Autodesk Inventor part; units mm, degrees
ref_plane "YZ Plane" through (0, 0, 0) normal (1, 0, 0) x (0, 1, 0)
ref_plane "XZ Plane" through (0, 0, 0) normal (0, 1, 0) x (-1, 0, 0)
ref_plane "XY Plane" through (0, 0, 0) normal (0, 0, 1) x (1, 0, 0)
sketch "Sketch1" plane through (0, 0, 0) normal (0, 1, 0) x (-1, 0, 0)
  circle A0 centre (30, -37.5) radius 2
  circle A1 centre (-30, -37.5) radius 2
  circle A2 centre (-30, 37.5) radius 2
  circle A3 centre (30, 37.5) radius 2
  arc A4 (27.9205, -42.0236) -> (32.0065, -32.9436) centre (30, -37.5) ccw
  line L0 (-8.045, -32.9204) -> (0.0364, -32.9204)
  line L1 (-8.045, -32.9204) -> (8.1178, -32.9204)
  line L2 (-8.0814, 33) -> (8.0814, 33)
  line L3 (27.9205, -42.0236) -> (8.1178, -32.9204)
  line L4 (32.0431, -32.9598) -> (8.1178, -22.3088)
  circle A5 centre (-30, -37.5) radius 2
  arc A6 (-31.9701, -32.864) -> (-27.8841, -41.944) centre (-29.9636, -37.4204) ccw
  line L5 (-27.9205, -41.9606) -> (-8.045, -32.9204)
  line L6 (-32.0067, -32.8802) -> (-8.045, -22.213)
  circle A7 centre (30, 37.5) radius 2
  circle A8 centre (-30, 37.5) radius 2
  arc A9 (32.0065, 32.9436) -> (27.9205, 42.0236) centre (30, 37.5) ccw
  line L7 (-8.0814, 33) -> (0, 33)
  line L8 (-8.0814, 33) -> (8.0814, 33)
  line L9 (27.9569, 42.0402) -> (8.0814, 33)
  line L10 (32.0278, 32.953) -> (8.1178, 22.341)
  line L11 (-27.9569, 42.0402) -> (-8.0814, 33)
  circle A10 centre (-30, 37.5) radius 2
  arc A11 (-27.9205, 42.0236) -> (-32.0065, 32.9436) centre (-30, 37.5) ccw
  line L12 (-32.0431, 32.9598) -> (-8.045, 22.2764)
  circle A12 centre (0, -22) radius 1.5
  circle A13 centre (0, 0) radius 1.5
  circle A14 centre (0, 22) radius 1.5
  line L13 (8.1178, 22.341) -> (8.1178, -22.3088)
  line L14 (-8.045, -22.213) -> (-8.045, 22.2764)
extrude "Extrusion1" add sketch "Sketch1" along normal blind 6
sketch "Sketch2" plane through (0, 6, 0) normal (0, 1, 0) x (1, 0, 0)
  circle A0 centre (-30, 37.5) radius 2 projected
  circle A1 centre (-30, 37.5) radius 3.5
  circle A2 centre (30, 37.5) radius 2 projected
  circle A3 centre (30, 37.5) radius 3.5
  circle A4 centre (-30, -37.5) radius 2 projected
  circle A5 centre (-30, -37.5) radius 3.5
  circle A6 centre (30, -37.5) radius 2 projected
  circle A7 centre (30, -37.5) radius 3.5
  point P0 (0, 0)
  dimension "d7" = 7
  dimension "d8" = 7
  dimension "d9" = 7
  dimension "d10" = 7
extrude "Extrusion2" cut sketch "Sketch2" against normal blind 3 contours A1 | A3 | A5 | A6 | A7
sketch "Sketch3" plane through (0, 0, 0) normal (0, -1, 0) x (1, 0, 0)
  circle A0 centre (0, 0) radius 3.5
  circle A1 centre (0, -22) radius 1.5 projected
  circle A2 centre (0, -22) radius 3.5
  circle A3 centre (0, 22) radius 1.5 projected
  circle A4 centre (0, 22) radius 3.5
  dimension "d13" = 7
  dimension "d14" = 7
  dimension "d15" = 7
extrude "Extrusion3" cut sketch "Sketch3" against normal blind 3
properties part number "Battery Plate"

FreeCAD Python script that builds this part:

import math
import FreeCAD as App
import Part
import Sketcher

V = App.Vector
Q = App.Units.Quantity

doc = App.newDocument("Part")
body = doc.addObject("PartDesign::Body", "Body")

# Sketch on XZ plane
sketch1 = body.newObject("Sketcher::SketchObject", "Sketch")
sketch1.AttachmentSupport = (doc.getObject("XZ_Plane"), [""])
sketch1.MapMode = "FlatFace"
sketch1.addGeometry([
    Part.LineSegment(V(-8.1178, -32.9204, 0), V(-27.9205, -42.0236, 0)),  # 0
    Part.ArcOfCircle(Part.Circle(V(-30, -37.5, 0), V(0, 0, 1), 4.978682), math.radians(113.767233), math.radians(294.688253)),  # 1
    Part.LineSegment(V(-32.006535, -32.943522, 0), V(-8.1178, -22.3088, 0)),  # 2
    Part.LineSegment(V(-8.1178, -22.3088, 0), V(-8.1178, 22.341, 0)),  # 3
    Part.LineSegment(V(-8.1178, 22.341, 0), V(-32.00652, 32.943555, 0)),  # 4
    Part.ArcOfCircle(Part.Circle(V(-30, 37.5, 0), V(0, 0, 1), 4.978637), math.radians(65.311747), math.radians(246.232767)),  # 5
    Part.LineSegment(V(-27.920484, 42.023636, 0), V(-8.0814, 33, 0)),  # 6
    Part.LineSegment(V(-8.0814, 33, 0), V(8.0814, 33, 0)),  # 7
    Part.LineSegment(V(8.0814, 33, 0), V(27.9569, 42.0402, 0)),  # 8
    Part.ArcOfCircle(Part.Circle(V(30, 37.5, 0), V(0, 0, 1), 4.978682), math.radians(-66.232767), math.radians(114.22785)),  # 9
    Part.LineSegment(V(32.006535, 32.943522, 0), V(8.045, 22.2764, 0)),  # 10
    Part.LineSegment(V(8.045, 22.2764, 0), V(8.045, -22.213, 0)),  # 11
    Part.LineSegment(V(8.045, -22.213, 0), V(31.970135, -32.863922, 0)),  # 12
    Part.ArcOfCircle(Part.Circle(V(29.9636, -37.4204, 0), V(0, 0, 1), 4.978637), math.radians(-114.688253), math.radians(66.232767)),  # 13
    Part.LineSegment(V(27.884084, -41.944036, 0), V(8.045, -32.9204, 0)),  # 14
    Part.LineSegment(V(8.045, -32.9204, 0), V(-8.1178, -32.9204, 0)),  # 15
    Part.Circle(V(30, -37.5, 0), V(0, 0, 1), 2),  # 16
    Part.Circle(V(0, -22, 0), V(0, 0, 1), 1.5),  # 17
    Part.Circle(V(-30, -37.5, 0), V(0, 0, 1), 2),  # 18
    Part.Circle(V(30, 37.5, 0), V(0, 0, 1), 2),  # 19
    Part.Circle(V(0, 0, 0), V(0, 0, 1), 1.5),  # 20
    Part.Circle(V(0, 22, 0), V(0, 0, 1), 1.5),  # 21
    Part.Circle(V(-30, 37.5, 0), V(0, 0, 1), 2),  # 22
], False)
sketch1.addConstraint([
    Sketcher.Constraint("Tangent", 0, 2, 1, 2),
    Sketcher.Constraint("Coincident", 1, 1, 2, 1),
    Sketcher.Constraint("Coincident", 2, 2, 3, 1),
    Sketcher.Constraint("Coincident", 3, 2, 4, 1),
    Sketcher.Constraint("Coincident", 4, 2, 5, 2),
    Sketcher.Constraint("Coincident", 5, 1, 6, 1),
    Sketcher.Constraint("Coincident", 6, 2, 7, 1),
    Sketcher.Constraint("Coincident", 7, 2, 8, 1),
    Sketcher.Constraint("Coincident", 8, 2, 9, 2),
    Sketcher.Constraint("Coincident", 9, 1, 10, 1),
    Sketcher.Constraint("Coincident", 10, 2, 11, 1),
    Sketcher.Constraint("Coincident", 11, 2, 12, 1),
    Sketcher.Constraint("Coincident", 12, 2, 13, 2),
    Sketcher.Constraint("Coincident", 13, 1, 14, 1),
    Sketcher.Constraint("Coincident", 14, 2, 15, 1),
    Sketcher.Constraint("Coincident", 15, 2, 0, 1),
    Sketcher.Constraint("Vertical", 3),
    Sketcher.Constraint("Horizontal", 7),
    Sketcher.Constraint("Vertical", 11),
    Sketcher.Constraint("Horizontal", 15),
    Sketcher.Constraint("Coincident", 20, 3, -1, 1),
    Sketcher.Constraint("Coincident", 18, 3, 1, 3),
    Sketcher.Constraint("Coincident", 19, 3, 9, 3),
    Sketcher.Constraint("Coincident", 22, 3, 5, 3),
    Sketcher.Constraint("Equal", 1, 5),
    Sketcher.Constraint("Equal", 5, 9),
    Sketcher.Constraint("Equal", 9, 13),
    Sketcher.Constraint("Equal", 16, 18),
    Sketcher.Constraint("Equal", 18, 19),
    Sketcher.Constraint("Equal", 17, 20),
    Sketcher.Constraint("Equal", 20, 21),
    Sketcher.Constraint("Equal", 19, 22),
    Sketcher.Constraint("Symmetric", 1, 3, 9, 3, -1, 1),
    Sketcher.Constraint("Symmetric", 5, 3, 16, 3, -1, 1),
    Sketcher.Constraint("Symmetric", 17, 3, 21, 3, -1, 1),
    Sketcher.Constraint("Symmetric", 5, 3, 9, 3, -2),
    Sketcher.Constraint("PointOnObject", 17, 3, -2),
    Sketcher.Constraint("Parallel", 2, 10),
    Sketcher.Constraint("Parallel", 6, 14),
    Sketcher.Constraint("Horizontal", 4, 2, 9, 1),
    Sketcher.Constraint("Vertical", 1, 1, 4, 2),
    Sketcher.Constraint("Vertical", 0, 2, 5, 1),
    Sketcher.Constraint("Vertical", 11, 2, 14, 2),
    Sketcher.Constraint("Vertical", 3, 2, 15, 2),
    Sketcher.Constraint("Equal", 7, 15),
    Sketcher.Constraint("Equal", 0, 6),
    Sketcher.Constraint("Equal", 6, 14),
    Sketcher.Constraint("Diameter", 16, Q("4 mm")),
    Sketcher.Constraint("Diameter", 17, Q("3 mm")),
    Sketcher.Constraint("DistanceX", 1, 3, -1, 1, Q("30 mm")),
    Sketcher.Constraint("DistanceY", 17, 3, -1, 1, Q("22 mm")),
    Sketcher.Constraint("DistanceY", -1, 1, 6, 2, Q("33 mm")),
    Sketcher.Constraint("DistanceY", 1, 3, 5, 3, Q("75 mm")),
    Sketcher.Constraint("Radius", 1, Q("4.9787 mm")),
    Sketcher.Constraint("DistanceY", 13, 3, 14, 2, Q("4.5 mm")),
    Sketcher.Constraint("DistanceY", 0, 2, 1, 1, Q("9.08 mm")),
    Sketcher.Constraint("DistanceY", 13, 1, 12, 2, Q("9.08 mm")),
    Sketcher.Constraint("Distance", 2, Q("26.149 mm")),
    Sketcher.Constraint("Distance", 4, Q("26.136 mm")),
    Sketcher.Constraint("DistanceX", 7, 1, 7, 2, Q("16.1628 mm")),
    Sketcher.Constraint("DistanceY", 3, 1, 3, 2, Q("44.6498 mm")),
    Sketcher.Constraint("DistanceY", 11, 2, 11, 1, Q("44.4894 mm")),
    Sketcher.Constraint("DistanceX", -1, 1, 8, 2, Q("27.957 mm")),
    Sketcher.Constraint("DistanceX", -1, 1, 10, 2, Q("8.045 mm")),
])
pad1 = body.newObject("PartDesign::Pad", "Pad")
pad1.Profile = sketch1
pad1.Length = 6
pad1.Reversed = True

# Sketch on XZ plane
sketch2 = body.newObject("Sketcher::SketchObject", "Sketch001")
sketch2.AttachmentSupport = (doc.getObject("XZ_Plane"), [""])
sketch2.MapMode = "FlatFace"
sketch2.AttachmentOffset = App.Placement(V(0, 0, -6), App.Rotation())
sketch2.addGeometry([
    Part.Circle(V(-30, -37.5, 0), V(0, 0, 1), 3.5),  # 0
    Part.Circle(V(-30, -37.5, 0), V(0, 0, 1), 2),  # 1
    Part.Circle(V(30, -37.5, 0), V(0, 0, 1), 3.5),  # 2
    Part.Circle(V(30, -37.5, 0), V(0, 0, 1), 2),  # 3
    Part.Circle(V(-30, 37.5, 0), V(0, 0, 1), 3.5),  # 4
    Part.Circle(V(-30, 37.5, 0), V(0, 0, 1), 2),  # 5
    Part.Circle(V(30, 37.5, 0), V(0, 0, 1), 3.5),  # 6
], False)
sketch2.addConstraint([
    Sketcher.Constraint("Coincident", 1, 3, 0, 3),
    Sketcher.Constraint("Coincident", 3, 3, 2, 3),
    Sketcher.Constraint("Coincident", 5, 3, 4, 3),
    Sketcher.Constraint("Equal", 0, 2),
    Sketcher.Constraint("Equal", 1, 3),
    Sketcher.Constraint("Equal", 2, 4),
    Sketcher.Constraint("Equal", 3, 5),
    Sketcher.Constraint("Equal", 4, 6),
    Sketcher.Constraint("Symmetric", 2, 3, 4, 3, -1, 1),
    Sketcher.Constraint("Symmetric", 0, 3, 6, 3, -1, 1),
    Sketcher.Constraint("Symmetric", 0, 3, 2, 3, -2),
    Sketcher.Constraint("Diameter", 0, Q("7 mm")),
    Sketcher.Constraint("Diameter", 1, Q("4 mm")),
    Sketcher.Constraint("DistanceX", 0, 3, -1, 1, Q("30 mm")),
    Sketcher.Constraint("DistanceY", 0, 3, 4, 3, Q("75 mm")),
])
pocket1 = body.newObject("PartDesign::Pocket", "Pocket")
pocket1.Profile = sketch2
pocket1.Length = 3
pocket1.Reversed = True

# Sketch on XZ plane
sketch3 = body.newObject("Sketcher::SketchObject", "Sketch002")
sketch3.AttachmentSupport = (doc.getObject("XZ_Plane"), [""])
sketch3.MapMode = "FlatFace"
sketch3.addGeometry([
    Part.Circle(V(0, 0, 0), V(0, 0, 1), 3.5),  # 0
    Part.Circle(V(0, -22, 0), V(0, 0, 1), 3.5),  # 1
    Part.Circle(V(0, -22, 0), V(0, 0, 1), 1.5),  # 2
    Part.Circle(V(0, 22, 0), V(0, 0, 1), 3.5),  # 3
    Part.Circle(V(0, 22, 0), V(0, 0, 1), 1.5),  # 4
], False)
sketch3.addConstraint([
    Sketcher.Constraint("Coincident", 0, 3, -1, 1),
    Sketcher.Constraint("Coincident", 2, 3, 1, 3),
    Sketcher.Constraint("Coincident", 4, 3, 3, 3),
    Sketcher.Constraint("Equal", 0, 1),
    Sketcher.Constraint("Equal", 1, 3),
    Sketcher.Constraint("Equal", 2, 4),
    Sketcher.Constraint("Symmetric", 1, 3, 3, 3, -1, 1),
    Sketcher.Constraint("PointOnObject", 1, 3, -2),
    Sketcher.Constraint("Diameter", 0, Q("7 mm")),
    Sketcher.Constraint("Diameter", 2, Q("3 mm")),
    Sketcher.Constraint("DistanceY", 1, 3, -1, 1, Q("22 mm")),
])
pocket2 = body.newObject("PartDesign::Pocket", "Pocket001")
pocket2.Profile = sketch3
pocket2.Length = 3

doc.recompute()
